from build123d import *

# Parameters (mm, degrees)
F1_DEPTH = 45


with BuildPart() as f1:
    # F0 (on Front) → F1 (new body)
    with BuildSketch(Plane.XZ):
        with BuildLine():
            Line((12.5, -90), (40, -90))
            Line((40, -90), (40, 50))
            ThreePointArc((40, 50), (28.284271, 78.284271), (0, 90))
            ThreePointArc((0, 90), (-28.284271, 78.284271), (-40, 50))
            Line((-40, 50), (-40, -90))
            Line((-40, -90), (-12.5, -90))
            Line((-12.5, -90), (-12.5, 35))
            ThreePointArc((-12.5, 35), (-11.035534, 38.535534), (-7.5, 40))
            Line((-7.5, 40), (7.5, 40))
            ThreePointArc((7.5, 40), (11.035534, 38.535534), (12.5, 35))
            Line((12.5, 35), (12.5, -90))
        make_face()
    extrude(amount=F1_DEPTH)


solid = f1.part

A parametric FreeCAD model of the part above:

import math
import FreeCAD as App
import Part
import Sketcher

V = App.Vector

doc = App.newDocument("Part")
params = doc.addObject("Spreadsheet::Sheet", "Params")
for row, (alias, value) in enumerate([
    ("sketch1_radius", "40.000001 mm"),
    ("sketch1_radius2", "5 mm"),
    ("sketch1_width", "15 mm"),
    ("sketch1_height", "140 mm"),
    ("sketch1_height2", "125 mm"),
    ("pad1_length", "45 mm"),
], start=1):
    params.set(f"A{row}", alias)
    params.set(f"B{row}", "=" + value)
    params.setAlias(f"B{row}", alias)

body = doc.addObject("PartDesign::Body", "Body")

sketch1 = doc.addObject("Sketcher::SketchObject", "Sketch")
body.addObject(sketch1)
sketch1.AttachmentSupport = (doc.XZ_Plane, [""])
sketch1.MapMode = "FlatFace"
sketch1.addGeometry([
    Part.LineSegment(V(12.5, -90, 0), V(40, -90, 0)),
    Part.LineSegment(V(40, -90, 0), V(40, 50, 0)),
    Part.ArcOfCircle(Part.Circle(V(0, 50, 0), V(0, 0, 1), 40), math.radians(0), math.radians(90)),
    Part.ArcOfCircle(Part.Circle(V(0, 50, 0), V(0, 0, 1), 40), math.radians(90), math.radians(180)),
    Part.LineSegment(V(-40, 50, 0), V(-40, -90, 0)),
    Part.LineSegment(V(-40, -90, 0), V(-12.5, -90, 0)),
    Part.LineSegment(V(-12.5, -90, 0), V(-12.5, 35, 0)),
    Part.ArcOfCircle(Part.Circle(V(-7.5, 35, 0), V(0, 0, 1), 5), math.radians(90), math.radians(180)),
    Part.LineSegment(V(-7.5, 40, 0), V(7.5, 40, 0)),
    Part.ArcOfCircle(Part.Circle(V(7.5, 35, 0), V(0, 0, 1), 5), math.radians(0), math.radians(90)),
    Part.LineSegment(V(12.5, 35, 0), V(12.5, -90, 0)),
], False)
sketch1.addConstraint([
    Sketcher.Constraint("Coincident", 0, 2, 1, 1),
    Sketcher.Constraint("Tangent", 1, 2, 2, 1),
    Sketcher.Constraint("Tangent", 2, 2, 3, 1),
    Sketcher.Constraint("Tangent", 3, 2, 4, 1),
    Sketcher.Constraint("Coincident", 4, 2, 5, 1),
    Sketcher.Constraint("Coincident", 5, 2, 6, 1),
    Sketcher.Constraint("Tangent", 6, 2, 7, 2),
    Sketcher.Constraint("Tangent", 7, 1, 8, 1),
    Sketcher.Constraint("Tangent", 8, 2, 9, 2),
    Sketcher.Constraint("Tangent", 9, 1, 10, 1),
    Sketcher.Constraint("Coincident", 10, 2, 0, 1),
    Sketcher.Constraint("Horizontal", 0),
    Sketcher.Constraint("Vertical", 1),
    Sketcher.Constraint("Vertical", 4),
    Sketcher.Constraint("Horizontal", 5),
    Sketcher.Constraint("Vertical", 6),
    Sketcher.Constraint("Horizontal", 8),
    Sketcher.Constraint("Vertical", 10),
    Sketcher.Constraint("Equal", 2, 3),
    Sketcher.Constraint("Equal", 7, 9),
    Sketcher.Constraint("Symmetric", 0, 2, 4, 2, -2),
    Sketcher.Constraint("PointOnObject", 2, 2, -2),
    Sketcher.Constraint("Equal", 0, 5),
    Sketcher.Constraint("Radius", 2, 40.000001),
    Sketcher.Constraint("Radius", 7, 5.0),
    Sketcher.Constraint("DistanceX", 8, 1, 8, 2, 15.0),
    Sketcher.Constraint("DistanceY", 1, 1, 1, 2, 140.0),
    Sketcher.Constraint("DistanceY", 6, 1, 6, 2, 125.0),
    Sketcher.Constraint("DistanceY", -1, 1, 2, 3, 49.999999),
])
sketch1.setExpression("Constraints[23]", "Params.sketch1_radius")
sketch1.setExpression("Constraints[24]", "Params.sketch1_radius2")
sketch1.setExpression("Constraints[25]", "Params.sketch1_width")
sketch1.setExpression("Constraints[26]", "Params.sketch1_height")
sketch1.setExpression("Constraints[27]", "Params.sketch1_height2")
pad1 = doc.addObject("PartDesign::Pad", "Pad")
body.addObject(pad1)
pad1.Profile = sketch1
pad1.setExpression("Length", "Params.pad1_length")

doc.recompute()
